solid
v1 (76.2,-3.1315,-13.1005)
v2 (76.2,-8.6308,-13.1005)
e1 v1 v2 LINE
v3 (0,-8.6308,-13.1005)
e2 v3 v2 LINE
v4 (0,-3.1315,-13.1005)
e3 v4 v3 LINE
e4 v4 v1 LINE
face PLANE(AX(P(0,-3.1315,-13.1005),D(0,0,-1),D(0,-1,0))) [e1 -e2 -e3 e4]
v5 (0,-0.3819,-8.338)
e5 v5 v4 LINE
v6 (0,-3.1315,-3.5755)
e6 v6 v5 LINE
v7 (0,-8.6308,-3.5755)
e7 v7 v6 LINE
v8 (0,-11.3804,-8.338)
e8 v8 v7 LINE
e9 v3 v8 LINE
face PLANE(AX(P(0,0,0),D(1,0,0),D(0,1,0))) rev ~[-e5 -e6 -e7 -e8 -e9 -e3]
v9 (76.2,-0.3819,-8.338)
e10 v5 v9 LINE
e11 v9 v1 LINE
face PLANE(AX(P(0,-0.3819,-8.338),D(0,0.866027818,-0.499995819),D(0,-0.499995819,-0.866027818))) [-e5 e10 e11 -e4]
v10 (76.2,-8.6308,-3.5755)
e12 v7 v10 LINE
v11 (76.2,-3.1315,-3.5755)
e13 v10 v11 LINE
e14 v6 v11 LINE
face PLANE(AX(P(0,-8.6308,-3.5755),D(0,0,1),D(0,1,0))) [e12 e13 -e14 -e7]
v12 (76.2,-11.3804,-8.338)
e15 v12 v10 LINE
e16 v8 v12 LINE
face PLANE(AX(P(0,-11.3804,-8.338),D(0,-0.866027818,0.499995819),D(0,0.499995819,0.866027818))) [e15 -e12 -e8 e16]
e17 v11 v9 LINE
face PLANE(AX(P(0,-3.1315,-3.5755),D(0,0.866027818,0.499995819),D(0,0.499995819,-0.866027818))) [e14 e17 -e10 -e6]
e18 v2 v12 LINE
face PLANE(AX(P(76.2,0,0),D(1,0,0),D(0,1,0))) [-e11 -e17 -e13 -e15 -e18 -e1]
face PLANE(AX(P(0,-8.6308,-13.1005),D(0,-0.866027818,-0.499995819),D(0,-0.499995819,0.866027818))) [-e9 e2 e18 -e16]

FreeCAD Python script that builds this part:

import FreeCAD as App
import Part
import Sketcher

V = App.Vector
Q = App.Units.Quantity

doc = App.newDocument("Part")
body = doc.addObject("PartDesign::Body", "Body")

sketch1 = body.newObject("Sketcher::SketchObject", "Sketch")
sketch1.AttachmentSupport = (doc.getObject("YZ_Plane"), [""])
sketch1.MapMode = "FlatFace"
sketch1.addGeometry(Part.LineSegment(V(-8.6308, -13.1005, 0), V(-3.1315, -13.1005, 0)), False)
sketch1.addGeometry(Part.LineSegment(V(-3.1315, -13.1005, 0), V(-0.3819, -8.338, 0)), False)
sketch1.addGeometry(Part.LineSegment(V(-0.3819, -8.338, 0), V(-3.1315, -3.5755, 0)), False)
sketch1.addGeometry(Part.LineSegment(V(-3.1315, -3.5755, 0), V(-8.6308, -3.5755, 0)), False)
sketch1.addGeometry(Part.LineSegment(V(-8.6308, -3.5755, 0), V(-11.3804, -8.338, 0)), False)
sketch1.addGeometry(Part.LineSegment(V(-11.3804, -8.338, 0), V(-8.6308, -13.1005, 0)), False)
sketch1.addConstraint(Sketcher.Constraint("Coincident", 0, 2, 1, 1))
sketch1.addConstraint(Sketcher.Constraint("Coincident", 1, 2, 2, 1))
sketch1.addConstraint(Sketcher.Constraint("Coincident", 2, 2, 3, 1))
sketch1.addConstraint(Sketcher.Constraint("Coincident", 3, 2, 4, 1))
sketch1.addConstraint(Sketcher.Constraint("Coincident", 4, 2, 5, 1))
sketch1.addConstraint(Sketcher.Constraint("Coincident", 5, 2, 0, 1))
sketch1.addConstraint(Sketcher.Constraint("Horizontal", 0))
sketch1.addConstraint(Sketcher.Constraint("Horizontal", 3))
sketch1.addConstraint(Sketcher.Constraint("Parallel", 1, 4))
sketch1.addConstraint(Sketcher.Constraint("Parallel", 2, 5))
sketch1.addConstraint(Sketcher.Constraint("Horizontal", 1, 2, 4, 2))
sketch1.addConstraint(Sketcher.Constraint("Vertical", 0, 2, 2, 2))
sketch1.addConstraint(Sketcher.Constraint("Vertical", 3, 2, 5, 2))
sketch1.addConstraint(Sketcher.Constraint("Angle", 1, Q("60.0003 deg")))
sketch1.addConstraint(Sketcher.Constraint("DistanceY", 0, 2, 2, 2, Q("0.375 in")))
sketch1.addConstraint(Sketcher.Constraint("DistanceX", 0, 1, 0, 2, Q("0.2165 in")))
sketch1.addConstraint(Sketcher.Constraint("DistanceX", 3, 2, -1, 1, Q("0.3398 in")))
sketch1.addConstraint(Sketcher.Constraint("DistanceY", 0, 2, -1, 1, 13.1005))
pad1 = body.newObject("PartDesign::Pad", "Pad")
pad1.Profile = sketch1
pad1.Length = Q("3 in")

doc.recompute()
